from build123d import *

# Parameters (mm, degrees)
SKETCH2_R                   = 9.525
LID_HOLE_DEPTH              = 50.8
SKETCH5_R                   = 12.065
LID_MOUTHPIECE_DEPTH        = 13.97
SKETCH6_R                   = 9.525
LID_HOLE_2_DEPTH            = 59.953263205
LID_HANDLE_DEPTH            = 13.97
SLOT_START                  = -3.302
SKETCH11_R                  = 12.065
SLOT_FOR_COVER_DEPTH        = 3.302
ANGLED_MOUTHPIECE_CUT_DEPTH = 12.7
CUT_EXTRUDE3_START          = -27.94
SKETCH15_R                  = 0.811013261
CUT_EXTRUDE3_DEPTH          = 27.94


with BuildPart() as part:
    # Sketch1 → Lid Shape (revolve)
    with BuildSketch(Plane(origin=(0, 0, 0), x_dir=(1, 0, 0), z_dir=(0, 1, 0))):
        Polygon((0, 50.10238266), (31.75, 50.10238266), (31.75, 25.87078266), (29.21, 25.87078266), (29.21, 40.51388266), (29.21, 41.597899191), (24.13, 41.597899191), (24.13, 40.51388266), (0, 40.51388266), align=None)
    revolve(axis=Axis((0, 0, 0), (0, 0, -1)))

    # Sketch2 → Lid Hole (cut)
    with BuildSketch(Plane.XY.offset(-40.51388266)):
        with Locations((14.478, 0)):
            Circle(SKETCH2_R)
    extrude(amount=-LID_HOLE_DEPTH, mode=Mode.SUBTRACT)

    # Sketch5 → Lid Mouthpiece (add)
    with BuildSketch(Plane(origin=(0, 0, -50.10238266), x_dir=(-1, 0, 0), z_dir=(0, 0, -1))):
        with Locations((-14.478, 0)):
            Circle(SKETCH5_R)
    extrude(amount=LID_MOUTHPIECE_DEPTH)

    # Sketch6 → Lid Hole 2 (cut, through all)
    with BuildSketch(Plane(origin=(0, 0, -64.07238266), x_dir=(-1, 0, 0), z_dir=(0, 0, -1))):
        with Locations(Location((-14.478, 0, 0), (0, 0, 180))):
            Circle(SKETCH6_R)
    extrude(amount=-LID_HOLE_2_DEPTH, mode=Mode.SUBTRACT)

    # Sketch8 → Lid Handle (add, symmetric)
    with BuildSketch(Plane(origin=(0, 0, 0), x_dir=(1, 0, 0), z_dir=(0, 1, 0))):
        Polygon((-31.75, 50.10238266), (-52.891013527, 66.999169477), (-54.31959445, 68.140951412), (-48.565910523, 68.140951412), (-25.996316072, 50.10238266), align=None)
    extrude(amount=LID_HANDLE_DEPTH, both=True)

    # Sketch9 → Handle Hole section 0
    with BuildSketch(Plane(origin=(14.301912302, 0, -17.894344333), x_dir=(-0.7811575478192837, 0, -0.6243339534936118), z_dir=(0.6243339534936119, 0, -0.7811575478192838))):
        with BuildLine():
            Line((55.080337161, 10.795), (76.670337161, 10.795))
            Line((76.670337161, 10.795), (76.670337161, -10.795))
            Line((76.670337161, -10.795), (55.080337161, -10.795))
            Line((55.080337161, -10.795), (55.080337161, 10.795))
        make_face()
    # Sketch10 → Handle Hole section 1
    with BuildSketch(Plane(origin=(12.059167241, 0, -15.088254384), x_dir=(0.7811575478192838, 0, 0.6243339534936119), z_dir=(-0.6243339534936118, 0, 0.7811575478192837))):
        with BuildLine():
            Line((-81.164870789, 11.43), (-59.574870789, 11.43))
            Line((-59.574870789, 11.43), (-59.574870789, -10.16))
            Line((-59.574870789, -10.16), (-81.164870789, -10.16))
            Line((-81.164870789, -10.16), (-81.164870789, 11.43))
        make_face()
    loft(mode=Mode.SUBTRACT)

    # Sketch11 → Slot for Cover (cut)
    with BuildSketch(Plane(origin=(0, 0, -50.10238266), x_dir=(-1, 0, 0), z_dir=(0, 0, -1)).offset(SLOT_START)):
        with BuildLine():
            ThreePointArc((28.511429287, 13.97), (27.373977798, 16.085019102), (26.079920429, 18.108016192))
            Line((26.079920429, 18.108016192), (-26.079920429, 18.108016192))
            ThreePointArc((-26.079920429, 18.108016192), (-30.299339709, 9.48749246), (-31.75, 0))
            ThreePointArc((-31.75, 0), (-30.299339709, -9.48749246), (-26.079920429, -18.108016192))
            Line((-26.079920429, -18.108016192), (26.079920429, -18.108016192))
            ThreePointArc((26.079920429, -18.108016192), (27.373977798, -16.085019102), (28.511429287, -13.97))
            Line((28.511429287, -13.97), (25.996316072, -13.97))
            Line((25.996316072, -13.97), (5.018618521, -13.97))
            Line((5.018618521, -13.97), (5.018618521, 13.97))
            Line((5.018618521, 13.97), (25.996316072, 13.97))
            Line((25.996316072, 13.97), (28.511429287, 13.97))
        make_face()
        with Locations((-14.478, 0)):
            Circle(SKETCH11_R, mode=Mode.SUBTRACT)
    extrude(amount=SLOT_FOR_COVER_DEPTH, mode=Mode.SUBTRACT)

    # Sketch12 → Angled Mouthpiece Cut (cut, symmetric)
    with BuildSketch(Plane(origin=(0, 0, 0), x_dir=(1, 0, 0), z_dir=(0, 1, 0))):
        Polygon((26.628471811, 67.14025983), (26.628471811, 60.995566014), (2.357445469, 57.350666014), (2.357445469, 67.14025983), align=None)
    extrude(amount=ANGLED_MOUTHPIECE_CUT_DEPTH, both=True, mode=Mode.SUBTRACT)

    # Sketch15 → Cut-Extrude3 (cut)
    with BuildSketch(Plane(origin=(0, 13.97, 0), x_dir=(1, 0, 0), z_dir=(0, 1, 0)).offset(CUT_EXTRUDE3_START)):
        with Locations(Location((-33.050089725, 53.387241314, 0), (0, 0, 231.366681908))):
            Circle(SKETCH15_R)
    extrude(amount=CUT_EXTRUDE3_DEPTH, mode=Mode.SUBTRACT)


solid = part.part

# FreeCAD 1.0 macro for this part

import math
import FreeCAD as App
import Part
import Sketcher
Q = App.Units.Quantity


def add_polygon(sketch, points):
    """Adds a closed chain of lines whose ends are joined by coincident constraints."""
    first, n = sketch.GeometryCount, len(points)
    for a, b in zip(points, points[1:] + points[:1]):
        sketch.addGeometry(Part.LineSegment(App.Vector(*a, 0), App.Vector(*b, 0)), False)
    for i in range(n):
        sketch.addConstraint(Sketcher.Constraint("Coincident", first + i, 2, first + (i + 1) % n, 1))

doc = App.newDocument("Part")
body = doc.addObject("PartDesign::Body", "Body")

sketch1 = body.newObject("Sketcher::SketchObject", "Sketch")
sketch1.AttachmentSupport = (doc.getObject("XZ_Plane"), [""])
sketch1.MapMode = "FlatFace"
add_polygon(sketch1, [(31.8, -50.1), (0, -50.1), (0, -40.5), (24.1, -40.5), (24.1, -41.6), (29.2, -41.6), (29.2, -25.9), (31.8, -25.9)])
sketch1.addConstraint([
    Sketcher.Constraint("Horizontal", 0),
    Sketcher.Constraint("Vertical", 1),
    Sketcher.Constraint("Horizontal", 2),
    Sketcher.Constraint("Vertical", 3),
    Sketcher.Constraint("Horizontal", 4),
    Sketcher.Constraint("Vertical", 5),
    Sketcher.Constraint("Horizontal", 6),
    Sketcher.Constraint("Vertical", 7),
    Sketcher.Constraint("PointOnObject", 0, 2, -2),
    Sketcher.Constraint("DistanceX", 4, 1, 4, 2, Q("0.2 in")),
    Sketcher.Constraint("DistanceX", 6, 1, 6, 2, Q("0.1 in")),
    Sketcher.Constraint("DistanceX", 0, 2, 0, 1, Q("1.25 in")),
    Sketcher.Constraint("DistanceY", 7, 2, 7, 1, Q("0.954 in")),
    Sketcher.Constraint("DistanceY", 1, 1, 1, 2, Q("0.3775 in")),
    Sketcher.Constraint("DistanceY", 3, 2, -1, 1, Q("41.597899 mm")),
    Sketcher.Constraint("DistanceY", 3, 2, 3, 1, Q("1.084017 mm")),
])
revolution = body.newObject("PartDesign::Revolution", "Revolution")
revolution.Profile = sketch1
revolution.ReferenceAxis = (sketch1, ["V_Axis"])
revolution.Angle = 360

sketch2 = body.newObject("Sketcher::SketchObject", "Sketch001")
sketch2.AttachmentSupport = (doc.getObject("XY_Plane"), [""])
sketch2.MapMode = "FlatFace"
sketch2.AttachmentOffset = App.Placement(App.Vector(0, 0, -40.513883), App.Rotation())
sketch2.addGeometry(Part.Circle(App.Vector(14, 0, 0), App.Vector(0, 0, 1), 10), False)
sketch2.addConstraint([
    Sketcher.Constraint("PointOnObject", 0, 3, -1),
    Sketcher.Constraint("Diameter", 0, Q("0.75 in")),
    Sketcher.Constraint("DistanceX", -1, 1, 0, 3, Q("0.57 in")),
])
pocket1 = body.newObject("PartDesign::Pocket", "Pocket")
pocket1.Profile = sketch2
pocket1.Length = Q("2 in")

sketch3 = body.newObject("Sketcher::SketchObject", "Sketch002")
sketch3.AttachmentSupport = (doc.getObject("XY_Plane"), [""])
sketch3.MapMode = "FlatFace"
sketch3.AttachmentOffset = App.Placement(App.Vector(0, 0, -50.102383), App.Rotation())
sketch3.addGeometry(Part.Circle(App.Vector(14, 0, 0), App.Vector(0, 0, 1), 12), False)
sketch3.addConstraint([
    Sketcher.Constraint("PointOnObject", 0, 3, -1),
    Sketcher.Constraint("Diameter", 0, Q("0.95 in")),
    Sketcher.Constraint("DistanceX", -1, 1, 0, 3, Q("0.57 in")),
])
pad1 = body.newObject("PartDesign::Pad", "Pad")
pad1.Profile = sketch3
pad1.Length = Q("0.55 in")
pad1.Reversed = True

sketch4 = body.newObject("Sketcher::SketchObject", "Sketch003")
sketch4.AttachmentSupport = (doc.getObject("XY_Plane"), [""])
sketch4.MapMode = "FlatFace"
sketch4.AttachmentOffset = App.Placement(App.Vector(0, 0, -64.072383), App.Rotation())
sketch4.addGeometry(Part.Circle(App.Vector(14, 0, 0), App.Vector(0, 0, 1), 10), False)
sketch4.addConstraint([
    Sketcher.Constraint("PointOnObject", 0, 3, -1),
    Sketcher.Constraint("Diameter", 0, Q("0.75 in")),
    Sketcher.Constraint("DistanceX", -1, 1, 0, 3, Q("0.57 in")),
])
pocket2 = body.newObject("PartDesign::Pocket", "Pocket001")
pocket2.Profile = sketch4
pocket2.Type = "ThroughAll"
pocket2.Reversed = True

sketch5 = body.newObject("Sketcher::SketchObject", "Sketch004")
sketch5.AttachmentSupport = (doc.getObject("XZ_Plane"), [""])
sketch5.MapMode = "FlatFace"
add_polygon(sketch5, [(-52.9, -67), (-31.8, -50.1), (-26, -50.1), (-48.6, -68.1), (-54.3, -68.1)])
sketch5.addConstraint([
    Sketcher.Constraint("Horizontal", 1),
    Sketcher.Constraint("Horizontal", 3),
    Sketcher.Constraint("Parallel", 0, 2),
    Sketcher.Constraint("Parallel", 2, 4),
    Sketcher.Constraint("DistanceX", 0, 2, -1, 1, Q("1.25 in")),
    Sketcher.Constraint("Distance", 4, Q("0.072 in")),
    Sketcher.Constraint("Distance", 0, Q("1.0655 in")),
    Sketcher.Constraint("DistanceX", 1, 1, 1, 2, Q("5.753684 mm")),
    Sketcher.Constraint("DistanceX", 2, 2, -1, 1, Q("48.565911 mm")),
    Sketcher.Constraint("DistanceY", 2, 2, -1, 1, Q("68.140951 mm")),
])
pad2 = body.newObject("PartDesign::Pad", "Pad001")
pad2.Profile = sketch5
pad2.Length = Q("1.1 in")
pad2.Midplane = True

sketch6 = body.newObject("Sketcher::SketchObject", "Sketch005")
sketch6.Placement = App.Placement(App.Vector(14.301912, 0, -17.894344), App.Rotation(App.Vector(-0.781157548, 0, -0.624333953), App.Vector(0, 1, 0), App.Vector(0.624333953, 0, -0.781157548), "ZXY"))
add_polygon(sketch6, [(77, 11), (55, 11), (55, -11), (77, -11)])
sketch6.addConstraint([
    Sketcher.Constraint("Horizontal", 0),
    Sketcher.Constraint("Vertical", 1),
    Sketcher.Constraint("Horizontal", 2),
    Sketcher.Constraint("Vertical", 3),
    Sketcher.Constraint("Equal", 2, 1),
    Sketcher.Constraint("DistanceX", 0, 2, 0, 1, Q("0.85 in")),
    Sketcher.Constraint("DistanceY", -1, 1, 0, 2, Q("0.425 in")),
    Sketcher.Constraint("DistanceX", -1, 1, 0, 2, Q("55.080337 mm")),
])

sketch7 = body.newObject("Sketcher::SketchObject", "Sketch006")
sketch7.Placement = App.Placement(App.Vector(12.059167, 0, -15.088254), App.Rotation(App.Vector(0.781157548, 0, 0.624333953), App.Vector(0, 1, 0), App.Vector(-0.624333953, 0, 0.781157548), "ZXY"))
add_polygon(sketch7, [(-60, 11), (-81, 11), (-81, -10), (-60, -10)])
sketch7.addConstraint([
    Sketcher.Constraint("Horizontal", 0),
    Sketcher.Constraint("Vertical", 1),
    Sketcher.Constraint("Horizontal", 2),
    Sketcher.Constraint("Vertical", 3),
    Sketcher.Constraint("Equal", 2, 1),
    Sketcher.Constraint("DistanceX", 0, 2, 0, 1, Q("0.85 in")),
    Sketcher.Constraint("DistanceY", 1, 2, -1, 1, Q("0.4 in")),
    Sketcher.Constraint("DistanceX", 0, 2, -1, 1, Q("81.164871 mm")),
])

subtractiveloft = body.newObject("PartDesign::SubtractiveLoft", "SubtractiveLoft")
subtractiveloft.Profile = sketch6
subtractiveloft.Sections = [sketch7]

sketch8 = body.newObject("Sketcher::SketchObject", "Sketch007")
sketch8.AttachmentSupport = (doc.getObject("XY_Plane"), [""])
sketch8.MapMode = "FlatFace"
sketch8.AttachmentOffset = App.Placement(App.Vector(0, 0, -46.800383), App.Rotation())
sketch8.addGeometry([
    Part.ArcOfCircle(Part.Circle(App.Vector(0, 0, 0), App.Vector(0, 0, 1), 31.7), math.radians(145.23), math.radians(153.9)),
    Part.LineSegment(App.Vector(-26.1, 18.1, 0), App.Vector(26.1, 18.1, 0)),
    Part.ArcOfCircle(Part.Circle(App.Vector(0, 0, 0), App.Vector(0, 0, 1), 31.8), math.radians(0), math.radians(35)),
    Part.ArcOfCircle(Part.Circle(App.Vector(0, 0, 0), App.Vector(0, 0, 1), 31.8), math.radians(-35), math.radians(0)),
    Part.LineSegment(App.Vector(26.1, -18.1, 0), App.Vector(-26.1, -18.1, 0)),
    Part.ArcOfCircle(Part.Circle(App.Vector(0, 0, 0), App.Vector(0, 0, 1), 31.7), math.radians(-153.9), math.radians(-145.23)),
    Part.LineSegment(App.Vector(-28.5, -14, 0), App.Vector(-5, -14, 0)),
    Part.LineSegment(App.Vector(-5, -14, 0), App.Vector(-5, 14, 0)),
    Part.LineSegment(App.Vector(-5, 14, 0), App.Vector(-28.5, 14, 0)),
    Part.Circle(App.Vector(14.5, 0, 0), App.Vector(0, 0, 1), 12.1),
], False)
sketch8.addConstraint([
    Sketcher.Constraint("Coincident", 0, 1, 1, 1),
    Sketcher.Constraint("Coincident", 1, 2, 2, 2),
    Sketcher.Constraint("Tangent", 2, 1, 3, 2),
    Sketcher.Constraint("Coincident", 3, 1, 4, 1),
    Sketcher.Constraint("Coincident", 4, 2, 5, 2),
    Sketcher.Constraint("Coincident", 5, 1, 6, 1),
    Sketcher.Constraint("Coincident", 6, 2, 7, 1),
    Sketcher.Constraint("Coincident", 7, 2, 8, 1),
    Sketcher.Constraint("Coincident", 8, 2, 0, 2),
    Sketcher.Constraint("Horizontal", 1),
    Sketcher.Constraint("Horizontal", 4),
    Sketcher.Constraint("Horizontal", 6),
    Sketcher.Constraint("Vertical", 7),
    Sketcher.Constraint("Horizontal", 8),
    Sketcher.Constraint("Coincident", 0, 3, -1, 1),
    Sketcher.Constraint("Coincident", 2, 3, -1, 1),
    Sketcher.Constraint("Coincident", 5, 3, -1, 1),
    Sketcher.Constraint("Equal", 0, 2),
    Sketcher.Constraint("Equal", 2, 3),
    Sketcher.Constraint("Equal", 3, 5),
    Sketcher.Constraint("PointOnObject", 9, 3, -1),
    Sketcher.Constraint("PointOnObject", 2, 1, -1),
    Sketcher.Constraint("Vertical", 1, 2, 3, 1),
    Sketcher.Constraint("Vertical", 5, 1, 8, 2),
    Sketcher.Constraint("Diameter", 9, Q("0.95 in")),
    Sketcher.Constraint("Radius", 0, Q("1.25 in")),
    Sketcher.Constraint("DistanceY", 7, 1, 7, 2, Q("1.1 in")),
    Sketcher.Constraint("DistanceX", -1, 1, 9, 3, Q("0.57 in")),
    Sketcher.Constraint("DistanceX", 1, 1, 1, 2, Q("52.159841 mm")),
    Sketcher.Constraint("DistanceX", 6, 1, 6, 2, Q("23.492811 mm")),
])
pocket3 = body.newObject("PartDesign::Pocket", "Pocket002")
pocket3.Profile = sketch8
pocket3.Length = Q("0.13 in")

sketch9 = body.newObject("Sketcher::SketchObject", "Sketch008")
sketch9.AttachmentSupport = (doc.getObject("XZ_Plane"), [""])
sketch9.MapMode = "FlatFace"
add_polygon(sketch9, [(27, -61), (27, -67), (2, -67), (2, -57)])
sketch9.addConstraint([
    Sketcher.Constraint("Vertical", 0),
    Sketcher.Constraint("Horizontal", 1),
    Sketcher.Constraint("Vertical", 2),
    Sketcher.Constraint("DistanceY", 3, 2, 2, 2, Q("0.1435 in")),
    Sketcher.Constraint("DistanceX", 1, 2, 1, 1, Q("24.271026 mm")),
    Sketcher.Constraint("DistanceY", 0, 2, 0, 1, Q("6.144694 mm")),
    Sketcher.Constraint("DistanceX", -1, 1, 0, 2, Q("26.628472 mm")),
    Sketcher.Constraint("DistanceY", 0, 2, -1, 1, Q("67.14026 mm")),
])
pocket4 = body.newObject("PartDesign::Pocket", "Pocket003")
pocket4.Profile = sketch9
pocket4.Length = Q("1 in")
pocket4.Midplane = True

sketch10 = body.newObject("Sketcher::SketchObject", "Sketch009")
sketch10.AttachmentSupport = (doc.getObject("XZ_Plane"), [""])
sketch10.MapMode = "FlatFace"
sketch10.AttachmentOffset = App.Placement(App.Vector(0, 0, 0.55 * 25.4), App.Rotation())
sketch10.addGeometry(Part.Circle(App.Vector(-33.1, -53.4, 0), App.Vector(0, 0, 1), 0.8), False)
sketch10.addConstraint([
    Sketcher.Constraint("Diameter", 0, Q("1.622027 mm")),
    Sketcher.Constraint("DistanceX", 0, 3, -1, 1, Q("33.05009 mm")),
    Sketcher.Constraint("DistanceY", 0, 3, -1, 1, Q("53.387241 mm")),
])
pocket5 = body.newObject("PartDesign::Pocket", "Pocket004")
pocket5.Profile = sketch10
pocket5.Length = Q("1.1 in")

doc.recompute()
